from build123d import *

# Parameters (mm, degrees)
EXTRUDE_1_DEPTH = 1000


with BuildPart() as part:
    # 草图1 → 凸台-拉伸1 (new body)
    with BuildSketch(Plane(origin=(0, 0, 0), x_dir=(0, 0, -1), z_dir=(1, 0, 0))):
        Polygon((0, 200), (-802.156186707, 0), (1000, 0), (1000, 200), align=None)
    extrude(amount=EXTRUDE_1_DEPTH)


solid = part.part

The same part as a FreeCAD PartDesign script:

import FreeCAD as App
import Part
import Sketcher

V = App.Vector
Q = App.Units.Quantity


def add_polygon(sketch, points):
    """Adds a closed chain of lines whose ends are joined by coincident constraints."""
    first, n = sketch.GeometryCount, len(points)
    for a, b in zip(points, points[1:] + points[:1]):
        sketch.addGeometry(Part.LineSegment(App.Vector(*a, 0), App.Vector(*b, 0)), False)
    for i in range(n):
        sketch.addConstraint(Sketcher.Constraint("Coincident", first + i, 2, first + (i + 1) % n, 1))

doc = App.newDocument("Part")
body = doc.addObject("PartDesign::Body", "Body")

# Sketch on YZ plane
sketch1 = body.newObject("Sketcher::SketchObject", "Sketch")
sketch1.AttachmentSupport = (doc.getObject("YZ_Plane"), [""])
sketch1.MapMode = "FlatFace"
add_polygon(sketch1, [(200, 0), (0, 802), (0, -1000), (200, -1000)])  # lines 0-3
sketch1.addConstraint([
    Sketcher.Constraint("Vertical", 1),
    Sketcher.Constraint("Horizontal", 2),
    Sketcher.Constraint("Vertical", 3),
    Sketcher.Constraint("PointOnObject", 0, 2, -2),
    Sketcher.Constraint("PointOnObject", 3, 2, -1),
    Sketcher.Constraint("DistanceX", 2, 1, 2, 2, 200.0),
    Sketcher.Constraint("DistanceY", 3, 1, 3, 2, 1000.0),
    Sketcher.Constraint("Angle", 0, Q("104 deg")),
])
pad1 = body.newObject("PartDesign::Pad", "Pad")
pad1.Profile = sketch1
pad1.Length = 1000

doc.recompute()
